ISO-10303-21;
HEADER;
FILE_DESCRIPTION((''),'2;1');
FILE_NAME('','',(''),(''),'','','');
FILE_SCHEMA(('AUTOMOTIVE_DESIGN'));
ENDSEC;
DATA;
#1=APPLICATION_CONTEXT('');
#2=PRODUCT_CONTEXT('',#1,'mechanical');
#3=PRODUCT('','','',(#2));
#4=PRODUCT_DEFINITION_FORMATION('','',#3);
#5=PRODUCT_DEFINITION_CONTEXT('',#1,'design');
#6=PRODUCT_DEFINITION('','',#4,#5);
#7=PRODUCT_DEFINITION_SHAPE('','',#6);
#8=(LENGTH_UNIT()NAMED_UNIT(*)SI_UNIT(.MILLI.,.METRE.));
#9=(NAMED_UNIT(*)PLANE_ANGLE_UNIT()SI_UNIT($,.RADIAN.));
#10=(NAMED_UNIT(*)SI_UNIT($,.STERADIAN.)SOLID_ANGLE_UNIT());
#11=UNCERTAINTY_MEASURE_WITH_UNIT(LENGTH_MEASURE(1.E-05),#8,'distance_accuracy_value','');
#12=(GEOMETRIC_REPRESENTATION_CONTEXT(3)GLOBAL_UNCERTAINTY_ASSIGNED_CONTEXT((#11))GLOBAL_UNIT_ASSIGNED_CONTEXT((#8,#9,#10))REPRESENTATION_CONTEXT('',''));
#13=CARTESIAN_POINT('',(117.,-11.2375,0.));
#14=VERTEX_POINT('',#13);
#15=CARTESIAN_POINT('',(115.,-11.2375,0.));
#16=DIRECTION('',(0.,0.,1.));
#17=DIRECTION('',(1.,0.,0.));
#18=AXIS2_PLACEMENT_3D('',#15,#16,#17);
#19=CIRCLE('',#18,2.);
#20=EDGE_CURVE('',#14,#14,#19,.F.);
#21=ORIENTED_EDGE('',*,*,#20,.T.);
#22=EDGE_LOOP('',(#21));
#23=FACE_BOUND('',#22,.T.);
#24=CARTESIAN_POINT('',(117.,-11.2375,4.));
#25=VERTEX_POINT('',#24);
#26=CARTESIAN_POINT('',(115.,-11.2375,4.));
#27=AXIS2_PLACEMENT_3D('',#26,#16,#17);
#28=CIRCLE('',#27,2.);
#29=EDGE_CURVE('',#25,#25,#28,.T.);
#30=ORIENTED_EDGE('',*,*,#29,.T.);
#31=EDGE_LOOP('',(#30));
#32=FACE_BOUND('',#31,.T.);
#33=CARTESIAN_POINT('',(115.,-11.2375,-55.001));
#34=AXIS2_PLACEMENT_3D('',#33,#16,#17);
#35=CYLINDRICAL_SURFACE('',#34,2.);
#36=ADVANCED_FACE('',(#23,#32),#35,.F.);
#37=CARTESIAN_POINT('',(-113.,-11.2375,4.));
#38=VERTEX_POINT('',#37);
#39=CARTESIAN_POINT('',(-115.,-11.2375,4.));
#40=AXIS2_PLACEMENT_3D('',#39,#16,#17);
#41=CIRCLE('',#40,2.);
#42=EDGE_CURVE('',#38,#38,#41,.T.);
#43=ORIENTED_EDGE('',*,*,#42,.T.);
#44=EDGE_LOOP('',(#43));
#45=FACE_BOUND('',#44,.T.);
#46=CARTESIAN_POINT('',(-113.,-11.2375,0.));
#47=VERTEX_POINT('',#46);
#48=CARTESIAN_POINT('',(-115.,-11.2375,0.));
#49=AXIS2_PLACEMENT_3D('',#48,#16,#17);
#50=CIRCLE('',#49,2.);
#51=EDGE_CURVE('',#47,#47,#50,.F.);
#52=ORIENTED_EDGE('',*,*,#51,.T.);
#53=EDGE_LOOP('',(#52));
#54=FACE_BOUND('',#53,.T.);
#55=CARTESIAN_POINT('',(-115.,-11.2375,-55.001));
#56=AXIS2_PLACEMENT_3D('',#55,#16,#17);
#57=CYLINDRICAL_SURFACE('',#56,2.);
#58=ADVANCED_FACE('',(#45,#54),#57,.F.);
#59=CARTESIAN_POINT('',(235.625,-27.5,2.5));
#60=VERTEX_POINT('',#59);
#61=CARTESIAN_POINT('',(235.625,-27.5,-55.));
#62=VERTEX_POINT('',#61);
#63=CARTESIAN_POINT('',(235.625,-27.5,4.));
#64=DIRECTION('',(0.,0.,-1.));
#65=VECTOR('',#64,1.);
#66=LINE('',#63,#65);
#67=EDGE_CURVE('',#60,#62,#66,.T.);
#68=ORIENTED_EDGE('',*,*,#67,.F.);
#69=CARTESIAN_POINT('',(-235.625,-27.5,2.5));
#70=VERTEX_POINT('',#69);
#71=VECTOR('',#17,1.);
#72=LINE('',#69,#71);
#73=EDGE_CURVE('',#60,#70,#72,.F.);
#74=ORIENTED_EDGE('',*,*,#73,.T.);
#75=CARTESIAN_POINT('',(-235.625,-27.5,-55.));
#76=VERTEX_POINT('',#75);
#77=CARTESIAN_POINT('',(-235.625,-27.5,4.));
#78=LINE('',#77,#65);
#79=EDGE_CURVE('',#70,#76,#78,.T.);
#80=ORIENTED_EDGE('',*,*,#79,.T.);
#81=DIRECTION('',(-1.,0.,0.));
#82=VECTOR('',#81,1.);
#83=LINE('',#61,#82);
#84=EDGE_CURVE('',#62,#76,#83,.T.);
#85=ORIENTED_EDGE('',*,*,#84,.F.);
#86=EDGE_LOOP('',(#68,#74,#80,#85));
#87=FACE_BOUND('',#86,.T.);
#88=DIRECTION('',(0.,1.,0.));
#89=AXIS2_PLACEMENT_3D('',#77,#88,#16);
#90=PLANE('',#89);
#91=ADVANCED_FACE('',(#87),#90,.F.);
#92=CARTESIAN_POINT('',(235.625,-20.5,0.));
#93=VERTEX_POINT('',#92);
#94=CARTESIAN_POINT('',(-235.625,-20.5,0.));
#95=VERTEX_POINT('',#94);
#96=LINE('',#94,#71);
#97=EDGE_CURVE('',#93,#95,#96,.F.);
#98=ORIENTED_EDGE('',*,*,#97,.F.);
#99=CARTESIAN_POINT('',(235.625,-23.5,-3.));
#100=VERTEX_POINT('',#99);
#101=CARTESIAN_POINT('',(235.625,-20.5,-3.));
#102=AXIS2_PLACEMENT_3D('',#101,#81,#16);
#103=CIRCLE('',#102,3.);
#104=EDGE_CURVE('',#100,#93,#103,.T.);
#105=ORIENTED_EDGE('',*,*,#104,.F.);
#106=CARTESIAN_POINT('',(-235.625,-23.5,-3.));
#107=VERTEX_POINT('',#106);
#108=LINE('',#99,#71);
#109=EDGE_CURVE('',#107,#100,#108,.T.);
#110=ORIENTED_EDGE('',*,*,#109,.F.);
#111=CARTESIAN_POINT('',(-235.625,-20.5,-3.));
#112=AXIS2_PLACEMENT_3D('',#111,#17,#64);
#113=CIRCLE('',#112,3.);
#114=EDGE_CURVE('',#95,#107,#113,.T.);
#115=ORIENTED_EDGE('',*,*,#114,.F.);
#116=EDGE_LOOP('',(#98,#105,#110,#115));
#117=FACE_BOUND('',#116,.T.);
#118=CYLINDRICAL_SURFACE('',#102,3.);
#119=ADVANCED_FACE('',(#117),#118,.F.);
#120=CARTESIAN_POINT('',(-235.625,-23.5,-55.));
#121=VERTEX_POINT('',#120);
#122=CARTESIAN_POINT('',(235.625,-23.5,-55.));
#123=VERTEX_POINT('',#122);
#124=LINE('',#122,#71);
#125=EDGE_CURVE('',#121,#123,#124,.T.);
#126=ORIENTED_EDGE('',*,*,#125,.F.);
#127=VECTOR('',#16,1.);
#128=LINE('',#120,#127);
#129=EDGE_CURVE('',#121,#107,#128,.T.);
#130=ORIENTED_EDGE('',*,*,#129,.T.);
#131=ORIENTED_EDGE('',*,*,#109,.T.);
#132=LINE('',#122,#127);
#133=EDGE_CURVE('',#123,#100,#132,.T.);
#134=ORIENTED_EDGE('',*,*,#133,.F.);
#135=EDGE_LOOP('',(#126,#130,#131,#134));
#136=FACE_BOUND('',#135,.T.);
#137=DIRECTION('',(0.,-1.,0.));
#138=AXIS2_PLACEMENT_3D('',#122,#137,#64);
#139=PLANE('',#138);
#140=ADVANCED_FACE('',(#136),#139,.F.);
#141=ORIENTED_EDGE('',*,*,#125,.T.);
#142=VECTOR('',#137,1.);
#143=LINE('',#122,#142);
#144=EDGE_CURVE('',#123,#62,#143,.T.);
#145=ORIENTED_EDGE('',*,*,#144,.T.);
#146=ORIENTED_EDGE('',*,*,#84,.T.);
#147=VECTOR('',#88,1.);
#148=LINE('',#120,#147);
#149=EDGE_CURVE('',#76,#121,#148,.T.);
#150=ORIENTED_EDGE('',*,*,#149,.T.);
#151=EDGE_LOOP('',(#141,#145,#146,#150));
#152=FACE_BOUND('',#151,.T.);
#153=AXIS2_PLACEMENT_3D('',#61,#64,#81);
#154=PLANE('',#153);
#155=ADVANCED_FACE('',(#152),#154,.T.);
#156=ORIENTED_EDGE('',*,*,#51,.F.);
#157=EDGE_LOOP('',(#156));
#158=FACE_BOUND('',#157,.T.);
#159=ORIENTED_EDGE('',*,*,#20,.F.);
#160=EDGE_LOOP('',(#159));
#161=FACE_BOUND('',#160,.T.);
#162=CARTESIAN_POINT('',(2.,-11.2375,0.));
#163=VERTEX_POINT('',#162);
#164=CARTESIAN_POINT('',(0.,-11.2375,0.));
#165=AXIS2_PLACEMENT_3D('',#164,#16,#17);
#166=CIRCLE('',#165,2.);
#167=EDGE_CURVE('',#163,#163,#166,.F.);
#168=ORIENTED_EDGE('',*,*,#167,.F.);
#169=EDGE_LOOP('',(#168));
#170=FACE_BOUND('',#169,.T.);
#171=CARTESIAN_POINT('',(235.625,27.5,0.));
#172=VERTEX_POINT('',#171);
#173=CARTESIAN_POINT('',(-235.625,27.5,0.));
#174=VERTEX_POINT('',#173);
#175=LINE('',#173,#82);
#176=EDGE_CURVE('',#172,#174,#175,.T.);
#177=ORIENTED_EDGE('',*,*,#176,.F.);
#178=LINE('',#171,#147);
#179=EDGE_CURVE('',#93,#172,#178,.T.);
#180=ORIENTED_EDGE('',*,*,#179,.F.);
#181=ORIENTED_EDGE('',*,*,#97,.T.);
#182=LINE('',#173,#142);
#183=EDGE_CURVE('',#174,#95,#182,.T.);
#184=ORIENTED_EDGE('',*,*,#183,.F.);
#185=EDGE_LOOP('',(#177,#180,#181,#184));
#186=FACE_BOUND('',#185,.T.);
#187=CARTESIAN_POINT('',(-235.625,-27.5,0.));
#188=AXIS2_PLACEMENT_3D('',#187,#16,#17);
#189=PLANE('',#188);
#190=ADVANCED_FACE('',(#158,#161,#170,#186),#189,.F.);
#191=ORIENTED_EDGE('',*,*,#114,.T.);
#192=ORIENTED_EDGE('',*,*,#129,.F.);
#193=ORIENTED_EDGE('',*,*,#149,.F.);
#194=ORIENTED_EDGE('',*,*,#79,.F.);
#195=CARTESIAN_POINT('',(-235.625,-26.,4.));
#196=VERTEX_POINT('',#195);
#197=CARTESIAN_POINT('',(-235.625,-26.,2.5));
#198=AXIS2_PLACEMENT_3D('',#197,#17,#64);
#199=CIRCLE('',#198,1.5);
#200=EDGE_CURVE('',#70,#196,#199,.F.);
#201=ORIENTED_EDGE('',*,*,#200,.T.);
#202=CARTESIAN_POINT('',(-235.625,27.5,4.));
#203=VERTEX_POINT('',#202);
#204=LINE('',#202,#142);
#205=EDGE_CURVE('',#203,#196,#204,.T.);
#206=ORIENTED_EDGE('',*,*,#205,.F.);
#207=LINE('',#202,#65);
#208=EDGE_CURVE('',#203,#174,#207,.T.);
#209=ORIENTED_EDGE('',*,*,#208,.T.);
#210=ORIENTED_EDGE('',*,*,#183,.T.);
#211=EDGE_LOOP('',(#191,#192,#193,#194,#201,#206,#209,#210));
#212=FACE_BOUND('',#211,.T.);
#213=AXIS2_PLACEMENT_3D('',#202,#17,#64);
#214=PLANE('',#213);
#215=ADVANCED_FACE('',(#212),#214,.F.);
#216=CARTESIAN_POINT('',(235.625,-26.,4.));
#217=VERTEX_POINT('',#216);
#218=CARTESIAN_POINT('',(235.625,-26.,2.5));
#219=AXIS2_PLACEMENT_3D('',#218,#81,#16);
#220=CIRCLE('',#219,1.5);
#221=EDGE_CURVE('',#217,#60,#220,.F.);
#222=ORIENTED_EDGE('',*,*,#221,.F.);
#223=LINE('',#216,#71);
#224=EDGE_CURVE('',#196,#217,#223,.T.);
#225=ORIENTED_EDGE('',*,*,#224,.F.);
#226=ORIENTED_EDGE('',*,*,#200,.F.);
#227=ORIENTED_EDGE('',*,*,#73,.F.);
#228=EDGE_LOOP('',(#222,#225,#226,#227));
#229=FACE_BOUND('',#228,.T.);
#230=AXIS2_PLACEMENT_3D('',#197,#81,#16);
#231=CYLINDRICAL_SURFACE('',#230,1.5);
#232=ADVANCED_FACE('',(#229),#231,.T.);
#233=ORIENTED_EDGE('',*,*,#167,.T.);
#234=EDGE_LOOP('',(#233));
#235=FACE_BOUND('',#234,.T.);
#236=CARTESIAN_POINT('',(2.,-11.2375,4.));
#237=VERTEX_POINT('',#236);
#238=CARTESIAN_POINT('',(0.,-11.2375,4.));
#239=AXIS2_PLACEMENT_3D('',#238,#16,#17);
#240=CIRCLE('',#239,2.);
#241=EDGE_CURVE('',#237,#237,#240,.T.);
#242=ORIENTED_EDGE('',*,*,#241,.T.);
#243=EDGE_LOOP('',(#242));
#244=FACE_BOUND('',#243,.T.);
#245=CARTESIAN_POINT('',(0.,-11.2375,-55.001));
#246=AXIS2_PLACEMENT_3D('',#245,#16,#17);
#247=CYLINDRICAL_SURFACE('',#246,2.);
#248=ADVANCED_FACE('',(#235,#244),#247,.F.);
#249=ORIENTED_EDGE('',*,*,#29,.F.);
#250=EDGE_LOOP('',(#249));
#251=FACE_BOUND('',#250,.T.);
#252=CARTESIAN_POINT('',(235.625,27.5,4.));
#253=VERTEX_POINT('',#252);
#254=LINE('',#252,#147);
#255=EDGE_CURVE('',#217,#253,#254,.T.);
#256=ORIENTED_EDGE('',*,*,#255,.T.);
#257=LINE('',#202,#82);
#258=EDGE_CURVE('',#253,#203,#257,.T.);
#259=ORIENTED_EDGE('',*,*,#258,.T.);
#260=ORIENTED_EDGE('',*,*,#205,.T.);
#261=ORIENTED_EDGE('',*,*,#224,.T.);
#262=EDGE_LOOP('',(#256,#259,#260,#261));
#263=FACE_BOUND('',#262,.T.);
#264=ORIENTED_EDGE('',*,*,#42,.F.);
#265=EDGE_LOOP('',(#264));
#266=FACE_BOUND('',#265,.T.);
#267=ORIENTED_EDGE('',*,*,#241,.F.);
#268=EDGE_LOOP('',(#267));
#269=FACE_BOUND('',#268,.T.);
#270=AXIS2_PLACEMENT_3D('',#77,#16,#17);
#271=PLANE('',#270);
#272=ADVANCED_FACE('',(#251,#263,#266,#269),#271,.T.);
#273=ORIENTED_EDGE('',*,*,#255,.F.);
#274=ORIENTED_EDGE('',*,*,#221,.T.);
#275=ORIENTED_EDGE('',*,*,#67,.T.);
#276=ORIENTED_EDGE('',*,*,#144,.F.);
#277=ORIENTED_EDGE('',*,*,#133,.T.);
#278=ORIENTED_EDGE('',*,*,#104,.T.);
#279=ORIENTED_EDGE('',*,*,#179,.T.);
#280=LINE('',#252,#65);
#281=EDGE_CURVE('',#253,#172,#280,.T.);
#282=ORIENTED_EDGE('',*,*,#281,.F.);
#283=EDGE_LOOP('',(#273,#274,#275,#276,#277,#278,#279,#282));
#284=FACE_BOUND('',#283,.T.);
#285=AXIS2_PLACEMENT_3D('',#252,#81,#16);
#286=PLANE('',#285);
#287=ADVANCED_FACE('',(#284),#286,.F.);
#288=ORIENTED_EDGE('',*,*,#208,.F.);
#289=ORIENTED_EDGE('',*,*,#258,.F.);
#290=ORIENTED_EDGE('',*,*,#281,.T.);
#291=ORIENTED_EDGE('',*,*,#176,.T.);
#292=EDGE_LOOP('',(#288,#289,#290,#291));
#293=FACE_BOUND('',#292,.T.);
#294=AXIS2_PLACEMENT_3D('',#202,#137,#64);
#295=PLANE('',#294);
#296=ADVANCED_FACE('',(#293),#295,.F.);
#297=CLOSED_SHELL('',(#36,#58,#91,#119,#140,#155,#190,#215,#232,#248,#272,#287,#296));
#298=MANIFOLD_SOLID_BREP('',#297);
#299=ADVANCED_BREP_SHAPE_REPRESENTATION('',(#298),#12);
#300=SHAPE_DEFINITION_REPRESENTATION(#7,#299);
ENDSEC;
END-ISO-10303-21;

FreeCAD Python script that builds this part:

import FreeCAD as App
import Part
import Sketcher
from FreeCAD import Vector


def edges_at(feature, points):
    """Names of the edges that pass closest to the given points."""
    edges = feature.Shape.Edges
    near = lambda p: min(range(len(edges)), key=lambda i: edges[i].distToShape(Part.Vertex(*p))[0])
    return sorted({f"Edge{near(p) + 1}" for p in points})

doc = App.newDocument("Part")
body = doc.addObject("PartDesign::Body", "Body")

# Sketch on XY plane
sketch1 = body.newObject("Sketcher::SketchObject", "Sketch")
sketch1.AttachmentSupport = (doc.getObject("XY_Plane"), [""])
sketch1.MapMode = "FlatFace"
sketch1.addGeometry([
    Part.LineSegment(Vector(-235.625, 27.5, 0), Vector(-235.625, -27.5, 0)),
    Part.LineSegment(Vector(-235.625, -27.5, 0), Vector(235.625, -27.5, 0)),
    Part.LineSegment(Vector(235.625, -27.5, 0), Vector(235.625, 27.5, 0)),
    Part.LineSegment(Vector(235.625, 27.5, 0), Vector(-235.625, 27.5, 0)),
], False)
sketch1.addConstraint([
    Sketcher.Constraint("Coincident", 0, 2, 1, 1),
    Sketcher.Constraint("Coincident", 1, 2, 2, 1),
    Sketcher.Constraint("Coincident", 2, 2, 3, 1),
    Sketcher.Constraint("Coincident", 3, 2, 0, 1),
    Sketcher.Constraint("Vertical", 0),
    Sketcher.Constraint("Horizontal", 1),
    Sketcher.Constraint("Vertical", 2),
    Sketcher.Constraint("Horizontal", 3),
    Sketcher.Constraint("Symmetric", 0, 2, 2, 2, -1, 1),
    Sketcher.Constraint("DistanceY", 0, 2, 0, 1, 55.0),
    Sketcher.Constraint("DistanceX", 1, 1, 1, 2, 471.25),
])
pad1 = body.newObject("PartDesign::Pad", "Pad")
pad1.Profile = sketch1
pad1.Length = 4

# Sketch on XY plane
sketch2 = body.newObject("Sketcher::SketchObject", "Sketch001")
sketch2.AttachmentSupport = (doc.getObject("XY_Plane"), [""])
sketch2.MapMode = "FlatFace"
sketch2.addGeometry([
    Part.LineSegment(Vector(235.625, -23.5, 0), Vector(235.625, -27.5, 0)),
    Part.LineSegment(Vector(235.625, -27.5, 0), Vector(-235.625, -27.5, 0)),
    Part.LineSegment(Vector(-235.625, -27.5, 0), Vector(-235.625, -23.5, 0)),
    Part.LineSegment(Vector(-235.625, -23.5, 0), Vector(235.625, -23.5, 0)),
], False)
sketch2.addConstraint([
    Sketcher.Constraint("Coincident", 0, 2, 1, 1),
    Sketcher.Constraint("Coincident", 1, 2, 2, 1),
    Sketcher.Constraint("Coincident", 2, 2, 3, 1),
    Sketcher.Constraint("Coincident", 3, 2, 0, 1),
    Sketcher.Constraint("Vertical", 0),
    Sketcher.Constraint("Horizontal", 1),
    Sketcher.Constraint("Vertical", 2),
    Sketcher.Constraint("Horizontal", 3),
    Sketcher.Constraint("DistanceY", 0, 2, 0, 1, 4.0),
    Sketcher.Constraint("DistanceX", 1, 2, 1, 1, 471.25),
    Sketcher.Constraint("DistanceY", 0, 2, -1, 1, 27.5),
    Sketcher.Constraint("DistanceX", -1, 1, 0, 2, 235.625),
])
pad2 = body.newObject("PartDesign::Pad", "Pad001")
pad2.Profile = sketch2
pad2.Length = 55
pad2.Reversed = True
doc.recompute()

fillet = body.newObject("PartDesign::Fillet", "Fillet")
fillet.Base = (pad2, edges_at(pad2, [(0, -23.5, 0)]))
fillet.Radius = 3
doc.recompute()

fillet2 = body.newObject("PartDesign::Fillet", "Fillet001")
fillet2.Base = (fillet, edges_at(fillet, [(0, -27.5, 4)]))
fillet2.Radius = 1.5

# Sketch on XY plane
sketch3 = body.newObject("Sketcher::SketchObject", "Sketch002")
sketch3.AttachmentSupport = (doc.getObject("XY_Plane"), [""])
sketch3.MapMode = "FlatFace"
sketch3.AttachmentOffset = App.Placement(Vector(0, 0, 4), App.Rotation())
sketch3.addGeometry(Part.Circle(Vector(-115, -11.2375, 0), Vector(0, 0, 1), 2), False)
sketch3.addConstraint([
    Sketcher.Constraint("Diameter", 0, 4.0),
    Sketcher.Constraint("DistanceX", 0, 3, -1, 1, 115.0),
    Sketcher.Constraint("DistanceY", 0, 3, -1, 1, 11.2375),
])
pocket1 = body.newObject("PartDesign::Pocket", "Pocket")
pocket1.Profile = sketch3
pocket1.Type = "UpToFirst"

# Sketch on XY plane
sketch4 = body.newObject("Sketcher::SketchObject", "Sketch003")
sketch4.AttachmentSupport = (doc.getObject("XY_Plane"), [""])
sketch4.MapMode = "FlatFace"
sketch4.AttachmentOffset = App.Placement(Vector(0, 0, 4), App.Rotation())
sketch4.addGeometry(Part.Circle(Vector(0, -11.2375, 0), Vector(0, 0, 1), 2), False)
sketch4.addConstraint([
    Sketcher.Constraint("PointOnObject", 0, 3, -2),
    Sketcher.Constraint("Diameter", 0, 4.0),
    Sketcher.Constraint("DistanceY", 0, 3, -1, 1, 11.2375),
])
pocket2 = body.newObject("PartDesign::Pocket", "Pocket001")
pocket2.Profile = sketch4
pocket2.Type = "UpToFirst"

# Sketch on XY plane
sketch5 = body.newObject("Sketcher::SketchObject", "Sketch004")
sketch5.AttachmentSupport = (doc.getObject("XY_Plane"), [""])
sketch5.MapMode = "FlatFace"
sketch5.AttachmentOffset = App.Placement(Vector(0, 0, 4), App.Rotation())
sketch5.addGeometry(Part.Circle(Vector(115, -11.2375, 0), Vector(0, 0, 1), 2), False)
sketch5.addConstraint([
    Sketcher.Constraint("Diameter", 0, 4.0),
    Sketcher.Constraint("DistanceX", -1, 1, 0, 3, 115.0),
    Sketcher.Constraint("DistanceY", 0, 3, -1, 1, 11.2375),
])
pocket3 = body.newObject("PartDesign::Pocket", "Pocket002")
pocket3.Profile = sketch5
pocket3.Type = "UpToFirst"

doc.recompute()
